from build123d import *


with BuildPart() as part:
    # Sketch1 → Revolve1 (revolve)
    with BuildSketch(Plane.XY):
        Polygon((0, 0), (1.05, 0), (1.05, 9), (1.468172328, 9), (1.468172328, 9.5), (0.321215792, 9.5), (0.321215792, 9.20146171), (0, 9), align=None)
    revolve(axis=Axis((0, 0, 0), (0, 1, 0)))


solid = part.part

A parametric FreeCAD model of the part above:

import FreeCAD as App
import Part
import Sketcher

V = App.Vector

doc = App.newDocument("Part")
body = doc.addObject("PartDesign::Body", "Body")

sketch1 = body.newObject("Sketcher::SketchObject", "Sketch")
sketch1.AttachmentSupport = (doc.getObject("XY_Plane"), [""])
sketch1.MapMode = "FlatFace"
sketch1.addGeometry([
    Part.LineSegment(V(0, 0, 0), V(1.05, 0, 0)),
    Part.LineSegment(V(1.05, 0, 0), V(1.05, 9, 0)),
    Part.LineSegment(V(1.05, 9, 0), V(1.47, 9, 0)),
    Part.LineSegment(V(1.47, 9, 0), V(1.47, 9.5, 0)),
    Part.LineSegment(V(1.47, 9.5, 0), V(0.32, 9.5, 0)),
    Part.LineSegment(V(0.32, 9.5, 0), V(0.32, 9.2, 0)),
    Part.LineSegment(V(0.32, 9.2, 0), V(0, 9, 0)),
    Part.LineSegment(V(0, 9, 0), V(0, 0, 0)),
], False)
sketch1.addConstraint([
    Sketcher.Constraint("Coincident", 0, 2, 1, 1),
    Sketcher.Constraint("Coincident", 1, 2, 2, 1),
    Sketcher.Constraint("Coincident", 2, 2, 3, 1),
    Sketcher.Constraint("Coincident", 3, 2, 4, 1),
    Sketcher.Constraint("Coincident", 4, 2, 5, 1),
    Sketcher.Constraint("Coincident", 5, 2, 6, 1),
    Sketcher.Constraint("Coincident", 6, 2, 7, 1),
    Sketcher.Constraint("Coincident", 7, 2, 0, 1),
    Sketcher.Constraint("Horizontal", 0),
    Sketcher.Constraint("Vertical", 1),
    Sketcher.Constraint("Horizontal", 2),
    Sketcher.Constraint("Vertical", 3),
    Sketcher.Constraint("Horizontal", 4),
    Sketcher.Constraint("Vertical", 5),
    Sketcher.Constraint("Vertical", 7),
    Sketcher.Constraint("Coincident", 7, 2, -1, 1),
    Sketcher.Constraint("Horizontal", 2, 2, 6, 2),
    Sketcher.Constraint("DistanceY", 1, 1, 1, 2, 9.0),
    Sketcher.Constraint("DistanceY", 3, 1, 3, 2, 0.5),
    Sketcher.Constraint("DistanceX", 0, 1, 0, 2, 1.05),
    Sketcher.Constraint("DistanceY", 5, 2, 5, 1, 0.298538),
    Sketcher.Constraint("DistanceX", 2, 1, 2, 2, 0.418172),
    Sketcher.Constraint("DistanceX", 4, 2, 4, 1, 1.146957),
])
revolution = body.newObject("PartDesign::Revolution", "Revolution")
revolution.Profile = sketch1
revolution.ReferenceAxis = (sketch1, ["V_Axis"])
revolution.Angle = 360

doc.recompute()
